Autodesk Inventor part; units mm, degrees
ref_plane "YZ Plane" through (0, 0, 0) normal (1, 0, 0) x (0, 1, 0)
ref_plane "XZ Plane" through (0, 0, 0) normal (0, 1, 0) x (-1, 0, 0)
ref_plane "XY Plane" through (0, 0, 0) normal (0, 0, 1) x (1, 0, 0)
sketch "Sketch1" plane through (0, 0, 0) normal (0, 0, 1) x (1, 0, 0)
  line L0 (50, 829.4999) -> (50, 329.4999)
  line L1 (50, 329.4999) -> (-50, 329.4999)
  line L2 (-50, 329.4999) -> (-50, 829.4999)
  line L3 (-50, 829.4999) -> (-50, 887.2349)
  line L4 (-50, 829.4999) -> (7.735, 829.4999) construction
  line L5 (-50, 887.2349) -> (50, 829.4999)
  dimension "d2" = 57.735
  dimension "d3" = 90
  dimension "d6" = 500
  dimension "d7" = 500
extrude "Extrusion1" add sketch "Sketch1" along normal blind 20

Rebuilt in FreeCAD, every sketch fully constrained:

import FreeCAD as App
import Part
import Sketcher
from FreeCAD import Vector
Q = App.Units.Quantity

doc = App.newDocument("Part")
body = doc.addObject("PartDesign::Body", "Body")

sketch1 = doc.addObject("Sketcher::SketchObject", "Sketch")
body.addObject(sketch1)
sketch1.AttachmentSupport = (doc.XY_Plane, [""])
sketch1.MapMode = "FlatFace"
sketch1.addGeometry([
    Part.LineSegment(Vector(50, 329, 0), Vector(50, 829, 0)),
    Part.LineSegment(Vector(50, 829, 0), Vector(-50, 887, 0)),
    Part.LineSegment(Vector(-50, 887, 0), Vector(-50, 329, 0)),
    Part.LineSegment(Vector(-50, 329, 0), Vector(50, 329, 0)),
], False)
sketch1.addConstraint([
    Sketcher.Constraint("Coincident", 0, 2, 1, 1),
    Sketcher.Constraint("Coincident", 1, 2, 2, 1),
    Sketcher.Constraint("Coincident", 2, 2, 3, 1),
    Sketcher.Constraint("Coincident", 3, 2, 0, 1),
    Sketcher.Constraint("Vertical", 0),
    Sketcher.Constraint("Vertical", 2),
    Sketcher.Constraint("Horizontal", 3),
    Sketcher.Constraint("DistanceY", 0, 1, 0, 2, 500.0),
    Sketcher.Constraint("DistanceX", 3, 1, 3, 2, 100.0),
    Sketcher.Constraint("Angle", 1, Q("150 deg")),
    Sketcher.Constraint("DistanceX", -1, 1, 0, 2, 50.0),
    Sketcher.Constraint("DistanceY", -1, 1, 0, 2, 829.5),
])
pad1 = doc.addObject("PartDesign::Pad", "Pad")
body.addObject(pad1)
pad1.Profile = sketch1
pad1.Length = 20

doc.recompute()
